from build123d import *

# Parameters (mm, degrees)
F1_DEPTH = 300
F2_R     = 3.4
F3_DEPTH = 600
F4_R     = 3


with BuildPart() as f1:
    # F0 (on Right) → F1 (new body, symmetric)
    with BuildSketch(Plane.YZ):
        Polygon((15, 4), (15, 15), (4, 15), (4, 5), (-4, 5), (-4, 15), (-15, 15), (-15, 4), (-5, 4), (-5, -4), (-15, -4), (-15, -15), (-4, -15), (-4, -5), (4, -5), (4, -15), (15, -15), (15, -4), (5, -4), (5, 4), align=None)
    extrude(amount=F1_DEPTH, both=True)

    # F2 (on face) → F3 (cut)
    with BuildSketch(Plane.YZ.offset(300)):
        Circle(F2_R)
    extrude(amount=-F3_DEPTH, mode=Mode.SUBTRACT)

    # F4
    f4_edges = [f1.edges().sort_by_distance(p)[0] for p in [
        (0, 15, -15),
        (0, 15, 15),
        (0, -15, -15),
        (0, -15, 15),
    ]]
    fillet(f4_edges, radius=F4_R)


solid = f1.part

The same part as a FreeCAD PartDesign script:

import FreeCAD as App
import Part
import Sketcher

V = App.Vector


def edges_at(feature, points):
    """Names of the edges that pass closest to the given points."""
    edges = feature.Shape.Edges
    near = lambda p: min(range(len(edges)), key=lambda i: edges[i].distToShape(Part.Vertex(*p))[0])
    return sorted({f"Edge{near(p) + 1}" for p in points})


def add_polygon(sketch, points):
    """Adds a closed chain of lines whose ends are joined by coincident constraints."""
    first, n = sketch.GeometryCount, len(points)
    for a, b in zip(points, points[1:] + points[:1]):
        sketch.addGeometry(Part.LineSegment(App.Vector(*a, 0), App.Vector(*b, 0)), False)
    for i in range(n):
        sketch.addConstraint(Sketcher.Constraint("Coincident", first + i, 2, first + (i + 1) % n, 1))

doc = App.newDocument("Part")
params = doc.addObject("Spreadsheet::Sheet", "Params")
for row, (alias, value) in enumerate([
    ("sketch1_width", "11 mm"),
    ("sketch1_width2", "8 mm"),
    ("sketch1_width3", "10 mm"),
    ("pad1_length", "600 mm"),
    ("sketch2_diameter", "6.8 mm"),
    ("pocket1_length", "600 mm"),
    ("fillet_radius", "3 mm"),
], start=1):
    params.set(f"A{row}", alias)
    params.set(f"B{row}", "=" + value)
    params.setAlias(f"B{row}", alias)

body = doc.addObject("PartDesign::Body", "Body")

sketch1 = body.newObject("Sketcher::SketchObject", "Sketch")
sketch1.AttachmentSupport = (doc.getObject("YZ_Plane"), [""])
sketch1.MapMode = "FlatFace"
add_polygon(sketch1, [(15, 4), (15, 15), (4, 15), (4, 5), (-4, 5), (-4, 15), (-15, 15), (-15, 4), (-5, 4), (-5, -4), (-15, -4), (-15, -15), (-4, -15), (-4, -5), (4, -5), (4, -15), (15, -15), (15, -4), (5, -4), (5, 4)])
sketch1.addConstraint([
    Sketcher.Constraint("Vertical", 0),
    Sketcher.Constraint("Horizontal", 1),
    Sketcher.Constraint("Vertical", 2),
    Sketcher.Constraint("Horizontal", 3),
    Sketcher.Constraint("Vertical", 4),
    Sketcher.Constraint("Horizontal", 5),
    Sketcher.Constraint("Vertical", 6),
    Sketcher.Constraint("Horizontal", 7),
    Sketcher.Constraint("Vertical", 8),
    Sketcher.Constraint("Horizontal", 9),
    Sketcher.Constraint("Vertical", 10),
    Sketcher.Constraint("Horizontal", 11),
    Sketcher.Constraint("Vertical", 12),
    Sketcher.Constraint("Horizontal", 13),
    Sketcher.Constraint("Vertical", 14),
    Sketcher.Constraint("Horizontal", 15),
    Sketcher.Constraint("Vertical", 16),
    Sketcher.Constraint("Horizontal", 17),
    Sketcher.Constraint("Vertical", 18),
    Sketcher.Constraint("Horizontal", 19),
    Sketcher.Constraint("Symmetric", 0, 2, 10, 2, -1, 1),
    Sketcher.Constraint("Symmetric", 2, 2, 12, 2, -1, 1),
    Sketcher.Constraint("Symmetric", 4, 2, 14, 2, -1, 1),
    Sketcher.Constraint("Symmetric", 6, 2, 16, 2, -1, 1),
    Sketcher.Constraint("Symmetric", 8, 2, 18, 2, -1, 1),
    Sketcher.Constraint("Symmetric", 1, 2, 4, 2, -2),
    Sketcher.Constraint("Symmetric", 9, 2, 16, 2, -2),
    Sketcher.Constraint("Equal", 15, 0),
    Sketcher.Constraint("Equal", 19, 2),
    Sketcher.Constraint("Equal", 13, 8),
    Sketcher.Constraint("DistanceX", 1, 2, 1, 1, 11.0),
    Sketcher.Constraint("DistanceX", 3, 2, 3, 1, 8.0),
    Sketcher.Constraint("DistanceX", 7, 1, 7, 2, 10.0),
])
sketch1.setExpression("Constraints[50]", "Params.sketch1_width")
sketch1.setExpression("Constraints[51]", "Params.sketch1_width2")
sketch1.setExpression("Constraints[52]", "Params.sketch1_width3")
pad1 = body.newObject("PartDesign::Pad", "Pad")
pad1.Profile = sketch1
pad1.setExpression("Length", "Params.pad1_length")
pad1.Midplane = True

sketch2 = body.newObject("Sketcher::SketchObject", "Sketch001")
sketch2.AttachmentSupport = (doc.getObject("YZ_Plane"), [""])
sketch2.MapMode = "FlatFace"
sketch2.AttachmentOffset = App.Placement(V(0, 0, 300), App.Rotation())
sketch2.addGeometry(Part.Circle(V(0, 0, 0), V(0, 0, 1), 3.4), False)
sketch2.addConstraint([
    Sketcher.Constraint("Coincident", 0, 3, -1, 1),
    Sketcher.Constraint("Diameter", 0, 6.8),
])
sketch2.setExpression("Constraints[1]", "Params.sketch2_diameter")
pocket1 = body.newObject("PartDesign::Pocket", "Pocket")
pocket1.Profile = sketch2
pocket1.setExpression("Length", "Params.pocket1_length")
doc.recompute()

fillet = body.newObject("PartDesign::Fillet", "Fillet")
fillet.Base = (pocket1, edges_at(pocket1, [
    (0, 15, -15),
    (0, 15, 15),
    (0, -15, -15),
    (0, -15, 15),
]))
fillet.setExpression("Radius", "Params.fillet_radius")

doc.recompute()
